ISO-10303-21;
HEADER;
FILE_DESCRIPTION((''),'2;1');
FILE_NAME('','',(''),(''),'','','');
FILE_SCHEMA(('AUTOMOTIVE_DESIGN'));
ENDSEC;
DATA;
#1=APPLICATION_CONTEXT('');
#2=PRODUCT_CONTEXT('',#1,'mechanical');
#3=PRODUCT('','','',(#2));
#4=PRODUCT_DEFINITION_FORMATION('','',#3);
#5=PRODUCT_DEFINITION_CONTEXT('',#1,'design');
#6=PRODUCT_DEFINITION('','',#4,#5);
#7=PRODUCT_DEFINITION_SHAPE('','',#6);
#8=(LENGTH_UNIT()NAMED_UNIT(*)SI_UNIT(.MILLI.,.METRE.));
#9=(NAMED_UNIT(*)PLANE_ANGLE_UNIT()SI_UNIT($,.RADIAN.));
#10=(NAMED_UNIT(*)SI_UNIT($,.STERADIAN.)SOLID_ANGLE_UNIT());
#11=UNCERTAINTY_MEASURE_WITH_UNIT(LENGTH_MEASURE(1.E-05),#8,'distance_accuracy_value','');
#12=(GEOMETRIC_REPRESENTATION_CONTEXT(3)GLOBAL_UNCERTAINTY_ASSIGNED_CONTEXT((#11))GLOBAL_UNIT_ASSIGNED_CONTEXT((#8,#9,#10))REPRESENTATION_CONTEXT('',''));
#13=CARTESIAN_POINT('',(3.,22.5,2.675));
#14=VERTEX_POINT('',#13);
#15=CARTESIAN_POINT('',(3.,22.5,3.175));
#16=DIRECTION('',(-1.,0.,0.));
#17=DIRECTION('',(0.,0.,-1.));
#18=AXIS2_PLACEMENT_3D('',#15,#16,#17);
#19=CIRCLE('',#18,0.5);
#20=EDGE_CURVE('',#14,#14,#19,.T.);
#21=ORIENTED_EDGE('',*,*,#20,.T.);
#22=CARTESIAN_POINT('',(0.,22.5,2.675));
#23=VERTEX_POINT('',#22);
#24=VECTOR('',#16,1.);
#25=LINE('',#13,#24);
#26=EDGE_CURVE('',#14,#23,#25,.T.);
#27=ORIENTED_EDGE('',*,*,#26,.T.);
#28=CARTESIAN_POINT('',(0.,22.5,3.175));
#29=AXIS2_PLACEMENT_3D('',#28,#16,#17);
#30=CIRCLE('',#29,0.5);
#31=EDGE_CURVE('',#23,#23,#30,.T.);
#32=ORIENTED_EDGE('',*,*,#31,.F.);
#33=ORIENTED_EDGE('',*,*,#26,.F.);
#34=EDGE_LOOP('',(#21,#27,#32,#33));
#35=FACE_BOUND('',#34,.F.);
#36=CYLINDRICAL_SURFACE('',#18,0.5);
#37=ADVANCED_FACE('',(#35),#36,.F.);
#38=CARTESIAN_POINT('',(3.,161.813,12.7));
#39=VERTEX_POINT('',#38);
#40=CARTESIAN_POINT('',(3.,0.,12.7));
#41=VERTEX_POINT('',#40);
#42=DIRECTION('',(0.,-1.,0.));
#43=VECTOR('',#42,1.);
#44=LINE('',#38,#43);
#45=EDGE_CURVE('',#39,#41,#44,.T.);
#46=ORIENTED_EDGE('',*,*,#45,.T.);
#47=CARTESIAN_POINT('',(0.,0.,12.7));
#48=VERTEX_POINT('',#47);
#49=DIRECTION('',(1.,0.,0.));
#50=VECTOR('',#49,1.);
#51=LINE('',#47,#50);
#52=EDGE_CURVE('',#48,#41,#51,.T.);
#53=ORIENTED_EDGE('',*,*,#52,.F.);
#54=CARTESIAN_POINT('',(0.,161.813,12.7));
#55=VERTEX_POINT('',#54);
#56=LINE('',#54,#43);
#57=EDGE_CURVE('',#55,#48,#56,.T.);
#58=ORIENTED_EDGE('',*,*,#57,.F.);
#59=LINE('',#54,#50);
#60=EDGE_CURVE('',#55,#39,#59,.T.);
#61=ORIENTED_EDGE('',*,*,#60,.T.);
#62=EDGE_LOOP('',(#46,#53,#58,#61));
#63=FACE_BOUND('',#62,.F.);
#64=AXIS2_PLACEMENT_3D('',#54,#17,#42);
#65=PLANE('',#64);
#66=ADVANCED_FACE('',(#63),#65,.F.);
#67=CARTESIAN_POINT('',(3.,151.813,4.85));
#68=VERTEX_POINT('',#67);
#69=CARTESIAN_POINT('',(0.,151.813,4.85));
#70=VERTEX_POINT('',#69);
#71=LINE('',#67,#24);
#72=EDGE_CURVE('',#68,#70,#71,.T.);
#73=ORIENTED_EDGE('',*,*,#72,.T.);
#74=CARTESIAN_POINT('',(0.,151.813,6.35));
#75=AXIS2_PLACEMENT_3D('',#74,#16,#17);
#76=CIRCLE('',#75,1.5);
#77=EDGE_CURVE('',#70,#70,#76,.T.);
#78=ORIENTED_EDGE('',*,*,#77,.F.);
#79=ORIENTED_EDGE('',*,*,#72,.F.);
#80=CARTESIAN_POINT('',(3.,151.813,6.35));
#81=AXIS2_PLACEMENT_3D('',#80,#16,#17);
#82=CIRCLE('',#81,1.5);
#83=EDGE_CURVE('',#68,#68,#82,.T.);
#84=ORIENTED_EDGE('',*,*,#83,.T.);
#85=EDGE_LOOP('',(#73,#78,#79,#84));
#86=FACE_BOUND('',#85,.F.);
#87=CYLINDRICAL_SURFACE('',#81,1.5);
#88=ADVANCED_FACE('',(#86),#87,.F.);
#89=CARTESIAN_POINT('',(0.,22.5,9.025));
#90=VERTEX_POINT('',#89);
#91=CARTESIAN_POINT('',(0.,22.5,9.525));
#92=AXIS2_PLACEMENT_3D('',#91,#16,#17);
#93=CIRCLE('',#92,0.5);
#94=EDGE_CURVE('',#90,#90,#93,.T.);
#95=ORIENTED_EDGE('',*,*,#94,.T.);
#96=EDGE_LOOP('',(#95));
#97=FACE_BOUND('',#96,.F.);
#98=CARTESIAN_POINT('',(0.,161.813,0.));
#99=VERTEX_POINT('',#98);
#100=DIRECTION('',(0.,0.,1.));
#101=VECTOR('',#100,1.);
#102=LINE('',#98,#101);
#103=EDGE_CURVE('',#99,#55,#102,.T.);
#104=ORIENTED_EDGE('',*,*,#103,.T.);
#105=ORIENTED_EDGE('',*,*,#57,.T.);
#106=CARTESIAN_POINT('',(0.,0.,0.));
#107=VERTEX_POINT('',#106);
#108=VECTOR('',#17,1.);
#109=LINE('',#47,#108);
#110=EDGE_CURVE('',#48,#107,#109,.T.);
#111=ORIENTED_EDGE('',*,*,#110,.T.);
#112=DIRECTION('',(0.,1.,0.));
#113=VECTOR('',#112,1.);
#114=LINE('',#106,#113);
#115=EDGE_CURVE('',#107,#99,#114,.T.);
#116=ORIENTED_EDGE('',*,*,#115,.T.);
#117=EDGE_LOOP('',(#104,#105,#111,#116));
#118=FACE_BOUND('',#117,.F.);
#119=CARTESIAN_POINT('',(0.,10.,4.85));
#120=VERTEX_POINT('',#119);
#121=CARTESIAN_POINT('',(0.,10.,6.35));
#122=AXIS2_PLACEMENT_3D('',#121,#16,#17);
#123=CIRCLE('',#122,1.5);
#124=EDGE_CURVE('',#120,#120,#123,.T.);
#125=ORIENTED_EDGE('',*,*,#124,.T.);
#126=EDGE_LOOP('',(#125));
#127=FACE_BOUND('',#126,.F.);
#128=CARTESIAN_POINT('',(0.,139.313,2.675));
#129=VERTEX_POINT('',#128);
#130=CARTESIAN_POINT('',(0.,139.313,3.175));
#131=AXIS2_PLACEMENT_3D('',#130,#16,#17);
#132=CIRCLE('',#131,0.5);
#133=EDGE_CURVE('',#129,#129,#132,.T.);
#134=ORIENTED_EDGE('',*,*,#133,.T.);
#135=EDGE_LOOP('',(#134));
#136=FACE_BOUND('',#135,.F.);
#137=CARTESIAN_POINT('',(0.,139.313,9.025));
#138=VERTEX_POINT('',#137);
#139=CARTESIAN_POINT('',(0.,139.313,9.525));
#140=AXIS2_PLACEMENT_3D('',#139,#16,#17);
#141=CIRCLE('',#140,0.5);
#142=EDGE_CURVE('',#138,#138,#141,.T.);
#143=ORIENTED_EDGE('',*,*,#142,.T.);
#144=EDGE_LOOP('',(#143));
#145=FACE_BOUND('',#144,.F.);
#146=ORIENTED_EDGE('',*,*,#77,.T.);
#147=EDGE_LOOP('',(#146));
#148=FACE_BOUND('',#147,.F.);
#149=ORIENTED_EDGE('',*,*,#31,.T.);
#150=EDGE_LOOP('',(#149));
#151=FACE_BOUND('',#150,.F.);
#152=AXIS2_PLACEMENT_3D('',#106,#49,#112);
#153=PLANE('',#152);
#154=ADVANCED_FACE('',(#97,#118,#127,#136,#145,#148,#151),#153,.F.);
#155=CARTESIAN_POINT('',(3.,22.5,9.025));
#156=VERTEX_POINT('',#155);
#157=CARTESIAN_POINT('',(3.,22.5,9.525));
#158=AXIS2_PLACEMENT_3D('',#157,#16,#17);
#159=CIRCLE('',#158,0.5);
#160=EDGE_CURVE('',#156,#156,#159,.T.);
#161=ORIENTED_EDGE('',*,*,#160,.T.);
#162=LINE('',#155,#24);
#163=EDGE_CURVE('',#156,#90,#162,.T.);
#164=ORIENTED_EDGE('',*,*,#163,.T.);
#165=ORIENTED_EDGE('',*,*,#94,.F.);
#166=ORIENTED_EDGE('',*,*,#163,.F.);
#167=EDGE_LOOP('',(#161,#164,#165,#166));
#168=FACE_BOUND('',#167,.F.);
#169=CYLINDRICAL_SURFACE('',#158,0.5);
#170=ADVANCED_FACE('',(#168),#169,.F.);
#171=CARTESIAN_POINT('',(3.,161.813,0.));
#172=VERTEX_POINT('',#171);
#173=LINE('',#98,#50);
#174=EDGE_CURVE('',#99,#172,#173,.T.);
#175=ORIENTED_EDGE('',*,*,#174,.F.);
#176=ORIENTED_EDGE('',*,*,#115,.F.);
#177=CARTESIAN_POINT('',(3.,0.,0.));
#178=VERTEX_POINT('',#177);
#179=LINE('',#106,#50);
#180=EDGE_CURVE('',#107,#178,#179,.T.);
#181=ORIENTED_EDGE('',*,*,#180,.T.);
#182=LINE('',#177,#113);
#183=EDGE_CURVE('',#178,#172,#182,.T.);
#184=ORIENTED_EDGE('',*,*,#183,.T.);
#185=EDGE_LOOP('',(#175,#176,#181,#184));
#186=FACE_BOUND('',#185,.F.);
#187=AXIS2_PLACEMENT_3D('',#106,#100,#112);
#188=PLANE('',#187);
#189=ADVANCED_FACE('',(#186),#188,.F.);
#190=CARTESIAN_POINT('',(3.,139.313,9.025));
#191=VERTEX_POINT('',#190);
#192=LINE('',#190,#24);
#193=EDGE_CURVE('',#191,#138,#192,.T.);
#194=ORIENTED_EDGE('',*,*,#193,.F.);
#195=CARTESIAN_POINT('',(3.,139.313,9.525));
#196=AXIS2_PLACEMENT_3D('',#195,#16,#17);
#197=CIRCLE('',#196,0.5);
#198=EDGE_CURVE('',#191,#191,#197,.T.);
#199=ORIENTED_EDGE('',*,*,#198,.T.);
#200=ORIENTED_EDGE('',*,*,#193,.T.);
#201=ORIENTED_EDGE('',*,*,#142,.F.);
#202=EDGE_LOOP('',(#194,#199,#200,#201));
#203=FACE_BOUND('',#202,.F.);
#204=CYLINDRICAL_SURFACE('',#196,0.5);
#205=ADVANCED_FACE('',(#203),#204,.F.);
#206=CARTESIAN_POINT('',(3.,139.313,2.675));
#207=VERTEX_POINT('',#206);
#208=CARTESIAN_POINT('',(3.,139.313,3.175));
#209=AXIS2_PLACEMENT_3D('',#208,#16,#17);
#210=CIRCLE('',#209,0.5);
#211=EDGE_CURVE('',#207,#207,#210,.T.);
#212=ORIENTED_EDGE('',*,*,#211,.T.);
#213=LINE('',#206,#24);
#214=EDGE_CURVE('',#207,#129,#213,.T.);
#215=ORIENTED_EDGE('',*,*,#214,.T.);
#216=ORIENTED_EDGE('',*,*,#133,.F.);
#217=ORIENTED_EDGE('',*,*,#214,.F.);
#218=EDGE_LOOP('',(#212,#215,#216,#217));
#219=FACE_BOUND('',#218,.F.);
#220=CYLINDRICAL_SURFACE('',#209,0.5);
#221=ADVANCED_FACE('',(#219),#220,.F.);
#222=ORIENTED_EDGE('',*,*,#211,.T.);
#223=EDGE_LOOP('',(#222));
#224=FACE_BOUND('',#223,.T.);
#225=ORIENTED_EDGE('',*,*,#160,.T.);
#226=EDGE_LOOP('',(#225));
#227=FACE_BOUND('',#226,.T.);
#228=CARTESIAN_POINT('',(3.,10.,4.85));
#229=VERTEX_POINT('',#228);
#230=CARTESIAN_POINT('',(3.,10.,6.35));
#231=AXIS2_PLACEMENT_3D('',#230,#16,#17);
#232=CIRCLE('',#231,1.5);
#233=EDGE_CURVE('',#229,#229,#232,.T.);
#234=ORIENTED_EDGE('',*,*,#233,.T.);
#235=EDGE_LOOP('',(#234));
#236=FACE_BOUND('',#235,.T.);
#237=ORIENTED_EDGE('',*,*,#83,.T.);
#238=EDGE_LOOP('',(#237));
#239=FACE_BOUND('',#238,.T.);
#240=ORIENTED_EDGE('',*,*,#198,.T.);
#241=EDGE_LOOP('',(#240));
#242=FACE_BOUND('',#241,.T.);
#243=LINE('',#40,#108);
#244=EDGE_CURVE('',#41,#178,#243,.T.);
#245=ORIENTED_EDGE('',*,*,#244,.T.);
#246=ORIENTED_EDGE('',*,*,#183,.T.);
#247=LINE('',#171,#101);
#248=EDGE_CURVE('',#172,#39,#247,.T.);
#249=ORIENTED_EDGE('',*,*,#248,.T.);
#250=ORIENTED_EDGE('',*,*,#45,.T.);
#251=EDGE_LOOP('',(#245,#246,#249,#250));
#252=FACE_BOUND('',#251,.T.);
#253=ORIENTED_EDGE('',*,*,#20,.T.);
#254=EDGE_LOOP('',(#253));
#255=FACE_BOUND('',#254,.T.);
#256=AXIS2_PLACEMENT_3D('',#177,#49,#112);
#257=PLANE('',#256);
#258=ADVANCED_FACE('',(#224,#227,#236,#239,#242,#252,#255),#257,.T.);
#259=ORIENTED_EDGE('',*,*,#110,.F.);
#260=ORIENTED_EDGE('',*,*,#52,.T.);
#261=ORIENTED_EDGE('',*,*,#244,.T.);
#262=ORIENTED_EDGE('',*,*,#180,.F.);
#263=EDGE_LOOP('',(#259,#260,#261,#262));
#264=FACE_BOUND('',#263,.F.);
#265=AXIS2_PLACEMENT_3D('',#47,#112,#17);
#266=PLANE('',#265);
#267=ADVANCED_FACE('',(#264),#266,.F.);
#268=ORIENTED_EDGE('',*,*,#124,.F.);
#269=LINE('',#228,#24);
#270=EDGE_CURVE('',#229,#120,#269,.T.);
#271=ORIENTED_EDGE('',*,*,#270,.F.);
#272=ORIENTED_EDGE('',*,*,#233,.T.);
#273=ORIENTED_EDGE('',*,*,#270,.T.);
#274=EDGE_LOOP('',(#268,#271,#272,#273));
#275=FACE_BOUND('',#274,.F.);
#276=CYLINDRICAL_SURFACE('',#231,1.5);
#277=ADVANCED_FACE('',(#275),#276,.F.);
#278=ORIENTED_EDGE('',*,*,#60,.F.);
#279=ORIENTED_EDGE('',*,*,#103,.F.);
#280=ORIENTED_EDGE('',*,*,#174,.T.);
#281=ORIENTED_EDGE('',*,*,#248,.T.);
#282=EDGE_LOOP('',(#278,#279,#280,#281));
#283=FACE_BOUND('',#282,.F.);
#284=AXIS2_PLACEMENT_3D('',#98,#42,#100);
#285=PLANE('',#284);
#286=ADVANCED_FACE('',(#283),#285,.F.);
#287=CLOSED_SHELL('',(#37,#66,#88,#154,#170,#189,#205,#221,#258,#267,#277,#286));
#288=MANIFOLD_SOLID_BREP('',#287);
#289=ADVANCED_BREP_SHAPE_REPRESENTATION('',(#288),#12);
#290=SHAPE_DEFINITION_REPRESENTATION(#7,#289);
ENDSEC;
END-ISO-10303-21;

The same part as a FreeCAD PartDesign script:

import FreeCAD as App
import Part
import Sketcher

V = App.Vector
Q = App.Units.Quantity


def add_polygon(sketch, points):
    """Adds a closed chain of lines whose ends are joined by coincident constraints."""
    first, n = sketch.GeometryCount, len(points)
    for a, b in zip(points, points[1:] + points[:1]):
        sketch.addGeometry(Part.LineSegment(App.Vector(*a, 0), App.Vector(*b, 0)), False)
    for i in range(n):
        sketch.addConstraint(Sketcher.Constraint("Coincident", first + i, 2, first + (i + 1) % n, 1))

doc = App.newDocument("Part")
body = doc.addObject("PartDesign::Body", "Body")

sketch1 = body.newObject("Sketcher::SketchObject", "Sketch")
sketch1.AttachmentSupport = (doc.getObject("YZ_Plane"), [""])
sketch1.MapMode = "FlatFace"
add_polygon(sketch1, [(0, 12.7), (0, 0), (161.813, 0), (161.813, 12.7)])
sketch1.addConstraint([
    Sketcher.Constraint("Vertical", 0),
    Sketcher.Constraint("Horizontal", 1),
    Sketcher.Constraint("Vertical", 2),
    Sketcher.Constraint("Horizontal", 3),
    Sketcher.Constraint("Coincident", 0, 2, -1, 1),
    Sketcher.Constraint("DistanceY", 0, 2, 0, 1, Q("12.7 mm")),
    Sketcher.Constraint("DistanceX", 1, 1, 1, 2, Q("161.813 mm")),
])
pad1 = body.newObject("PartDesign::Pad", "Pad")
pad1.Profile = sketch1
pad1.Length = 3

sketch2 = body.newObject("Sketcher::SketchObject", "Sketch001")
sketch2.AttachmentSupport = (doc.getObject("YZ_Plane"), [""])
sketch2.MapMode = "FlatFace"
sketch2.AttachmentOffset = App.Placement(V(0, 0, 3), App.Rotation())
sketch2.addGeometry([
    Part.Circle(V(22.5, 9.525, 0), V(0, 0, 1), 0.5),
    Part.Circle(V(22.5, 3.175, 0), V(0, 0, 1), 0.5),
    Part.Circle(V(139.313, 9.525, 0), V(0, 0, 1), 0.5),
    Part.Circle(V(139.313, 3.175, 0), V(0, 0, 1), 0.5),
], False)
sketch2.addConstraint([
    Sketcher.Constraint("Equal", 0, 1),
    Sketcher.Constraint("Equal", 1, 2),
    Sketcher.Constraint("Equal", 2, 3),
    Sketcher.Constraint("Horizontal", 0, 3, 2, 3),
    Sketcher.Constraint("Horizontal", 1, 3, 3, 3),
    Sketcher.Constraint("Vertical", 0, 3, 1, 3),
    Sketcher.Constraint("Vertical", 2, 3, 3, 3),
    Sketcher.Constraint("Diameter", 0, Q("1 mm")),
    Sketcher.Constraint("DistanceX", -1, 1, 0, 3, Q("22.5 mm")),
    Sketcher.Constraint("DistanceY", 1, 3, 0, 3, Q("6.35 mm")),
    Sketcher.Constraint("DistanceY", -1, 1, 0, 3, Q("9.525 mm")),
    Sketcher.Constraint("DistanceX", -1, 1, 2, 3, Q("139.313 mm")),
])
doc.recompute()
hole = body.newObject("PartDesign::Hole", "Hole")
hole.Profile = sketch2
hole.ThreadType = "None"
hole.Diameter = 1
hole.DepthType = "ThroughAll"

sketch3 = body.newObject("Sketcher::SketchObject", "Sketch002")
sketch3.AttachmentSupport = (doc.getObject("YZ_Plane"), [""])
sketch3.MapMode = "FlatFace"
sketch3.AttachmentOffset = App.Placement(V(0, 0, 3), App.Rotation())
sketch3.addGeometry([
    Part.Circle(V(10, 6.35, 0), V(0, 0, 1), 1.5),
    Part.Circle(V(151.813, 6.35, 0), V(0, 0, 1), 1.5),
], False)
sketch3.addConstraint([
    Sketcher.Constraint("Equal", 0, 1),
    Sketcher.Constraint("Horizontal", 0, 3, 1, 3),
    Sketcher.Constraint("Diameter", 0, Q("3 mm")),
    Sketcher.Constraint("DistanceX", -1, 1, 0, 3, Q("10 mm")),
    Sketcher.Constraint("DistanceY", -1, 1, 0, 3, Q("6.35 mm")),
    Sketcher.Constraint("DistanceX", -1, 1, 1, 3, Q("151.813 mm")),
])
doc.recompute()
hole2 = body.newObject("PartDesign::Hole", "Hole001")
hole2.Profile = sketch3
hole2.ThreadType = "None"
hole2.Diameter = 3
hole2.DepthType = "ThroughAll"

doc.recompute()
